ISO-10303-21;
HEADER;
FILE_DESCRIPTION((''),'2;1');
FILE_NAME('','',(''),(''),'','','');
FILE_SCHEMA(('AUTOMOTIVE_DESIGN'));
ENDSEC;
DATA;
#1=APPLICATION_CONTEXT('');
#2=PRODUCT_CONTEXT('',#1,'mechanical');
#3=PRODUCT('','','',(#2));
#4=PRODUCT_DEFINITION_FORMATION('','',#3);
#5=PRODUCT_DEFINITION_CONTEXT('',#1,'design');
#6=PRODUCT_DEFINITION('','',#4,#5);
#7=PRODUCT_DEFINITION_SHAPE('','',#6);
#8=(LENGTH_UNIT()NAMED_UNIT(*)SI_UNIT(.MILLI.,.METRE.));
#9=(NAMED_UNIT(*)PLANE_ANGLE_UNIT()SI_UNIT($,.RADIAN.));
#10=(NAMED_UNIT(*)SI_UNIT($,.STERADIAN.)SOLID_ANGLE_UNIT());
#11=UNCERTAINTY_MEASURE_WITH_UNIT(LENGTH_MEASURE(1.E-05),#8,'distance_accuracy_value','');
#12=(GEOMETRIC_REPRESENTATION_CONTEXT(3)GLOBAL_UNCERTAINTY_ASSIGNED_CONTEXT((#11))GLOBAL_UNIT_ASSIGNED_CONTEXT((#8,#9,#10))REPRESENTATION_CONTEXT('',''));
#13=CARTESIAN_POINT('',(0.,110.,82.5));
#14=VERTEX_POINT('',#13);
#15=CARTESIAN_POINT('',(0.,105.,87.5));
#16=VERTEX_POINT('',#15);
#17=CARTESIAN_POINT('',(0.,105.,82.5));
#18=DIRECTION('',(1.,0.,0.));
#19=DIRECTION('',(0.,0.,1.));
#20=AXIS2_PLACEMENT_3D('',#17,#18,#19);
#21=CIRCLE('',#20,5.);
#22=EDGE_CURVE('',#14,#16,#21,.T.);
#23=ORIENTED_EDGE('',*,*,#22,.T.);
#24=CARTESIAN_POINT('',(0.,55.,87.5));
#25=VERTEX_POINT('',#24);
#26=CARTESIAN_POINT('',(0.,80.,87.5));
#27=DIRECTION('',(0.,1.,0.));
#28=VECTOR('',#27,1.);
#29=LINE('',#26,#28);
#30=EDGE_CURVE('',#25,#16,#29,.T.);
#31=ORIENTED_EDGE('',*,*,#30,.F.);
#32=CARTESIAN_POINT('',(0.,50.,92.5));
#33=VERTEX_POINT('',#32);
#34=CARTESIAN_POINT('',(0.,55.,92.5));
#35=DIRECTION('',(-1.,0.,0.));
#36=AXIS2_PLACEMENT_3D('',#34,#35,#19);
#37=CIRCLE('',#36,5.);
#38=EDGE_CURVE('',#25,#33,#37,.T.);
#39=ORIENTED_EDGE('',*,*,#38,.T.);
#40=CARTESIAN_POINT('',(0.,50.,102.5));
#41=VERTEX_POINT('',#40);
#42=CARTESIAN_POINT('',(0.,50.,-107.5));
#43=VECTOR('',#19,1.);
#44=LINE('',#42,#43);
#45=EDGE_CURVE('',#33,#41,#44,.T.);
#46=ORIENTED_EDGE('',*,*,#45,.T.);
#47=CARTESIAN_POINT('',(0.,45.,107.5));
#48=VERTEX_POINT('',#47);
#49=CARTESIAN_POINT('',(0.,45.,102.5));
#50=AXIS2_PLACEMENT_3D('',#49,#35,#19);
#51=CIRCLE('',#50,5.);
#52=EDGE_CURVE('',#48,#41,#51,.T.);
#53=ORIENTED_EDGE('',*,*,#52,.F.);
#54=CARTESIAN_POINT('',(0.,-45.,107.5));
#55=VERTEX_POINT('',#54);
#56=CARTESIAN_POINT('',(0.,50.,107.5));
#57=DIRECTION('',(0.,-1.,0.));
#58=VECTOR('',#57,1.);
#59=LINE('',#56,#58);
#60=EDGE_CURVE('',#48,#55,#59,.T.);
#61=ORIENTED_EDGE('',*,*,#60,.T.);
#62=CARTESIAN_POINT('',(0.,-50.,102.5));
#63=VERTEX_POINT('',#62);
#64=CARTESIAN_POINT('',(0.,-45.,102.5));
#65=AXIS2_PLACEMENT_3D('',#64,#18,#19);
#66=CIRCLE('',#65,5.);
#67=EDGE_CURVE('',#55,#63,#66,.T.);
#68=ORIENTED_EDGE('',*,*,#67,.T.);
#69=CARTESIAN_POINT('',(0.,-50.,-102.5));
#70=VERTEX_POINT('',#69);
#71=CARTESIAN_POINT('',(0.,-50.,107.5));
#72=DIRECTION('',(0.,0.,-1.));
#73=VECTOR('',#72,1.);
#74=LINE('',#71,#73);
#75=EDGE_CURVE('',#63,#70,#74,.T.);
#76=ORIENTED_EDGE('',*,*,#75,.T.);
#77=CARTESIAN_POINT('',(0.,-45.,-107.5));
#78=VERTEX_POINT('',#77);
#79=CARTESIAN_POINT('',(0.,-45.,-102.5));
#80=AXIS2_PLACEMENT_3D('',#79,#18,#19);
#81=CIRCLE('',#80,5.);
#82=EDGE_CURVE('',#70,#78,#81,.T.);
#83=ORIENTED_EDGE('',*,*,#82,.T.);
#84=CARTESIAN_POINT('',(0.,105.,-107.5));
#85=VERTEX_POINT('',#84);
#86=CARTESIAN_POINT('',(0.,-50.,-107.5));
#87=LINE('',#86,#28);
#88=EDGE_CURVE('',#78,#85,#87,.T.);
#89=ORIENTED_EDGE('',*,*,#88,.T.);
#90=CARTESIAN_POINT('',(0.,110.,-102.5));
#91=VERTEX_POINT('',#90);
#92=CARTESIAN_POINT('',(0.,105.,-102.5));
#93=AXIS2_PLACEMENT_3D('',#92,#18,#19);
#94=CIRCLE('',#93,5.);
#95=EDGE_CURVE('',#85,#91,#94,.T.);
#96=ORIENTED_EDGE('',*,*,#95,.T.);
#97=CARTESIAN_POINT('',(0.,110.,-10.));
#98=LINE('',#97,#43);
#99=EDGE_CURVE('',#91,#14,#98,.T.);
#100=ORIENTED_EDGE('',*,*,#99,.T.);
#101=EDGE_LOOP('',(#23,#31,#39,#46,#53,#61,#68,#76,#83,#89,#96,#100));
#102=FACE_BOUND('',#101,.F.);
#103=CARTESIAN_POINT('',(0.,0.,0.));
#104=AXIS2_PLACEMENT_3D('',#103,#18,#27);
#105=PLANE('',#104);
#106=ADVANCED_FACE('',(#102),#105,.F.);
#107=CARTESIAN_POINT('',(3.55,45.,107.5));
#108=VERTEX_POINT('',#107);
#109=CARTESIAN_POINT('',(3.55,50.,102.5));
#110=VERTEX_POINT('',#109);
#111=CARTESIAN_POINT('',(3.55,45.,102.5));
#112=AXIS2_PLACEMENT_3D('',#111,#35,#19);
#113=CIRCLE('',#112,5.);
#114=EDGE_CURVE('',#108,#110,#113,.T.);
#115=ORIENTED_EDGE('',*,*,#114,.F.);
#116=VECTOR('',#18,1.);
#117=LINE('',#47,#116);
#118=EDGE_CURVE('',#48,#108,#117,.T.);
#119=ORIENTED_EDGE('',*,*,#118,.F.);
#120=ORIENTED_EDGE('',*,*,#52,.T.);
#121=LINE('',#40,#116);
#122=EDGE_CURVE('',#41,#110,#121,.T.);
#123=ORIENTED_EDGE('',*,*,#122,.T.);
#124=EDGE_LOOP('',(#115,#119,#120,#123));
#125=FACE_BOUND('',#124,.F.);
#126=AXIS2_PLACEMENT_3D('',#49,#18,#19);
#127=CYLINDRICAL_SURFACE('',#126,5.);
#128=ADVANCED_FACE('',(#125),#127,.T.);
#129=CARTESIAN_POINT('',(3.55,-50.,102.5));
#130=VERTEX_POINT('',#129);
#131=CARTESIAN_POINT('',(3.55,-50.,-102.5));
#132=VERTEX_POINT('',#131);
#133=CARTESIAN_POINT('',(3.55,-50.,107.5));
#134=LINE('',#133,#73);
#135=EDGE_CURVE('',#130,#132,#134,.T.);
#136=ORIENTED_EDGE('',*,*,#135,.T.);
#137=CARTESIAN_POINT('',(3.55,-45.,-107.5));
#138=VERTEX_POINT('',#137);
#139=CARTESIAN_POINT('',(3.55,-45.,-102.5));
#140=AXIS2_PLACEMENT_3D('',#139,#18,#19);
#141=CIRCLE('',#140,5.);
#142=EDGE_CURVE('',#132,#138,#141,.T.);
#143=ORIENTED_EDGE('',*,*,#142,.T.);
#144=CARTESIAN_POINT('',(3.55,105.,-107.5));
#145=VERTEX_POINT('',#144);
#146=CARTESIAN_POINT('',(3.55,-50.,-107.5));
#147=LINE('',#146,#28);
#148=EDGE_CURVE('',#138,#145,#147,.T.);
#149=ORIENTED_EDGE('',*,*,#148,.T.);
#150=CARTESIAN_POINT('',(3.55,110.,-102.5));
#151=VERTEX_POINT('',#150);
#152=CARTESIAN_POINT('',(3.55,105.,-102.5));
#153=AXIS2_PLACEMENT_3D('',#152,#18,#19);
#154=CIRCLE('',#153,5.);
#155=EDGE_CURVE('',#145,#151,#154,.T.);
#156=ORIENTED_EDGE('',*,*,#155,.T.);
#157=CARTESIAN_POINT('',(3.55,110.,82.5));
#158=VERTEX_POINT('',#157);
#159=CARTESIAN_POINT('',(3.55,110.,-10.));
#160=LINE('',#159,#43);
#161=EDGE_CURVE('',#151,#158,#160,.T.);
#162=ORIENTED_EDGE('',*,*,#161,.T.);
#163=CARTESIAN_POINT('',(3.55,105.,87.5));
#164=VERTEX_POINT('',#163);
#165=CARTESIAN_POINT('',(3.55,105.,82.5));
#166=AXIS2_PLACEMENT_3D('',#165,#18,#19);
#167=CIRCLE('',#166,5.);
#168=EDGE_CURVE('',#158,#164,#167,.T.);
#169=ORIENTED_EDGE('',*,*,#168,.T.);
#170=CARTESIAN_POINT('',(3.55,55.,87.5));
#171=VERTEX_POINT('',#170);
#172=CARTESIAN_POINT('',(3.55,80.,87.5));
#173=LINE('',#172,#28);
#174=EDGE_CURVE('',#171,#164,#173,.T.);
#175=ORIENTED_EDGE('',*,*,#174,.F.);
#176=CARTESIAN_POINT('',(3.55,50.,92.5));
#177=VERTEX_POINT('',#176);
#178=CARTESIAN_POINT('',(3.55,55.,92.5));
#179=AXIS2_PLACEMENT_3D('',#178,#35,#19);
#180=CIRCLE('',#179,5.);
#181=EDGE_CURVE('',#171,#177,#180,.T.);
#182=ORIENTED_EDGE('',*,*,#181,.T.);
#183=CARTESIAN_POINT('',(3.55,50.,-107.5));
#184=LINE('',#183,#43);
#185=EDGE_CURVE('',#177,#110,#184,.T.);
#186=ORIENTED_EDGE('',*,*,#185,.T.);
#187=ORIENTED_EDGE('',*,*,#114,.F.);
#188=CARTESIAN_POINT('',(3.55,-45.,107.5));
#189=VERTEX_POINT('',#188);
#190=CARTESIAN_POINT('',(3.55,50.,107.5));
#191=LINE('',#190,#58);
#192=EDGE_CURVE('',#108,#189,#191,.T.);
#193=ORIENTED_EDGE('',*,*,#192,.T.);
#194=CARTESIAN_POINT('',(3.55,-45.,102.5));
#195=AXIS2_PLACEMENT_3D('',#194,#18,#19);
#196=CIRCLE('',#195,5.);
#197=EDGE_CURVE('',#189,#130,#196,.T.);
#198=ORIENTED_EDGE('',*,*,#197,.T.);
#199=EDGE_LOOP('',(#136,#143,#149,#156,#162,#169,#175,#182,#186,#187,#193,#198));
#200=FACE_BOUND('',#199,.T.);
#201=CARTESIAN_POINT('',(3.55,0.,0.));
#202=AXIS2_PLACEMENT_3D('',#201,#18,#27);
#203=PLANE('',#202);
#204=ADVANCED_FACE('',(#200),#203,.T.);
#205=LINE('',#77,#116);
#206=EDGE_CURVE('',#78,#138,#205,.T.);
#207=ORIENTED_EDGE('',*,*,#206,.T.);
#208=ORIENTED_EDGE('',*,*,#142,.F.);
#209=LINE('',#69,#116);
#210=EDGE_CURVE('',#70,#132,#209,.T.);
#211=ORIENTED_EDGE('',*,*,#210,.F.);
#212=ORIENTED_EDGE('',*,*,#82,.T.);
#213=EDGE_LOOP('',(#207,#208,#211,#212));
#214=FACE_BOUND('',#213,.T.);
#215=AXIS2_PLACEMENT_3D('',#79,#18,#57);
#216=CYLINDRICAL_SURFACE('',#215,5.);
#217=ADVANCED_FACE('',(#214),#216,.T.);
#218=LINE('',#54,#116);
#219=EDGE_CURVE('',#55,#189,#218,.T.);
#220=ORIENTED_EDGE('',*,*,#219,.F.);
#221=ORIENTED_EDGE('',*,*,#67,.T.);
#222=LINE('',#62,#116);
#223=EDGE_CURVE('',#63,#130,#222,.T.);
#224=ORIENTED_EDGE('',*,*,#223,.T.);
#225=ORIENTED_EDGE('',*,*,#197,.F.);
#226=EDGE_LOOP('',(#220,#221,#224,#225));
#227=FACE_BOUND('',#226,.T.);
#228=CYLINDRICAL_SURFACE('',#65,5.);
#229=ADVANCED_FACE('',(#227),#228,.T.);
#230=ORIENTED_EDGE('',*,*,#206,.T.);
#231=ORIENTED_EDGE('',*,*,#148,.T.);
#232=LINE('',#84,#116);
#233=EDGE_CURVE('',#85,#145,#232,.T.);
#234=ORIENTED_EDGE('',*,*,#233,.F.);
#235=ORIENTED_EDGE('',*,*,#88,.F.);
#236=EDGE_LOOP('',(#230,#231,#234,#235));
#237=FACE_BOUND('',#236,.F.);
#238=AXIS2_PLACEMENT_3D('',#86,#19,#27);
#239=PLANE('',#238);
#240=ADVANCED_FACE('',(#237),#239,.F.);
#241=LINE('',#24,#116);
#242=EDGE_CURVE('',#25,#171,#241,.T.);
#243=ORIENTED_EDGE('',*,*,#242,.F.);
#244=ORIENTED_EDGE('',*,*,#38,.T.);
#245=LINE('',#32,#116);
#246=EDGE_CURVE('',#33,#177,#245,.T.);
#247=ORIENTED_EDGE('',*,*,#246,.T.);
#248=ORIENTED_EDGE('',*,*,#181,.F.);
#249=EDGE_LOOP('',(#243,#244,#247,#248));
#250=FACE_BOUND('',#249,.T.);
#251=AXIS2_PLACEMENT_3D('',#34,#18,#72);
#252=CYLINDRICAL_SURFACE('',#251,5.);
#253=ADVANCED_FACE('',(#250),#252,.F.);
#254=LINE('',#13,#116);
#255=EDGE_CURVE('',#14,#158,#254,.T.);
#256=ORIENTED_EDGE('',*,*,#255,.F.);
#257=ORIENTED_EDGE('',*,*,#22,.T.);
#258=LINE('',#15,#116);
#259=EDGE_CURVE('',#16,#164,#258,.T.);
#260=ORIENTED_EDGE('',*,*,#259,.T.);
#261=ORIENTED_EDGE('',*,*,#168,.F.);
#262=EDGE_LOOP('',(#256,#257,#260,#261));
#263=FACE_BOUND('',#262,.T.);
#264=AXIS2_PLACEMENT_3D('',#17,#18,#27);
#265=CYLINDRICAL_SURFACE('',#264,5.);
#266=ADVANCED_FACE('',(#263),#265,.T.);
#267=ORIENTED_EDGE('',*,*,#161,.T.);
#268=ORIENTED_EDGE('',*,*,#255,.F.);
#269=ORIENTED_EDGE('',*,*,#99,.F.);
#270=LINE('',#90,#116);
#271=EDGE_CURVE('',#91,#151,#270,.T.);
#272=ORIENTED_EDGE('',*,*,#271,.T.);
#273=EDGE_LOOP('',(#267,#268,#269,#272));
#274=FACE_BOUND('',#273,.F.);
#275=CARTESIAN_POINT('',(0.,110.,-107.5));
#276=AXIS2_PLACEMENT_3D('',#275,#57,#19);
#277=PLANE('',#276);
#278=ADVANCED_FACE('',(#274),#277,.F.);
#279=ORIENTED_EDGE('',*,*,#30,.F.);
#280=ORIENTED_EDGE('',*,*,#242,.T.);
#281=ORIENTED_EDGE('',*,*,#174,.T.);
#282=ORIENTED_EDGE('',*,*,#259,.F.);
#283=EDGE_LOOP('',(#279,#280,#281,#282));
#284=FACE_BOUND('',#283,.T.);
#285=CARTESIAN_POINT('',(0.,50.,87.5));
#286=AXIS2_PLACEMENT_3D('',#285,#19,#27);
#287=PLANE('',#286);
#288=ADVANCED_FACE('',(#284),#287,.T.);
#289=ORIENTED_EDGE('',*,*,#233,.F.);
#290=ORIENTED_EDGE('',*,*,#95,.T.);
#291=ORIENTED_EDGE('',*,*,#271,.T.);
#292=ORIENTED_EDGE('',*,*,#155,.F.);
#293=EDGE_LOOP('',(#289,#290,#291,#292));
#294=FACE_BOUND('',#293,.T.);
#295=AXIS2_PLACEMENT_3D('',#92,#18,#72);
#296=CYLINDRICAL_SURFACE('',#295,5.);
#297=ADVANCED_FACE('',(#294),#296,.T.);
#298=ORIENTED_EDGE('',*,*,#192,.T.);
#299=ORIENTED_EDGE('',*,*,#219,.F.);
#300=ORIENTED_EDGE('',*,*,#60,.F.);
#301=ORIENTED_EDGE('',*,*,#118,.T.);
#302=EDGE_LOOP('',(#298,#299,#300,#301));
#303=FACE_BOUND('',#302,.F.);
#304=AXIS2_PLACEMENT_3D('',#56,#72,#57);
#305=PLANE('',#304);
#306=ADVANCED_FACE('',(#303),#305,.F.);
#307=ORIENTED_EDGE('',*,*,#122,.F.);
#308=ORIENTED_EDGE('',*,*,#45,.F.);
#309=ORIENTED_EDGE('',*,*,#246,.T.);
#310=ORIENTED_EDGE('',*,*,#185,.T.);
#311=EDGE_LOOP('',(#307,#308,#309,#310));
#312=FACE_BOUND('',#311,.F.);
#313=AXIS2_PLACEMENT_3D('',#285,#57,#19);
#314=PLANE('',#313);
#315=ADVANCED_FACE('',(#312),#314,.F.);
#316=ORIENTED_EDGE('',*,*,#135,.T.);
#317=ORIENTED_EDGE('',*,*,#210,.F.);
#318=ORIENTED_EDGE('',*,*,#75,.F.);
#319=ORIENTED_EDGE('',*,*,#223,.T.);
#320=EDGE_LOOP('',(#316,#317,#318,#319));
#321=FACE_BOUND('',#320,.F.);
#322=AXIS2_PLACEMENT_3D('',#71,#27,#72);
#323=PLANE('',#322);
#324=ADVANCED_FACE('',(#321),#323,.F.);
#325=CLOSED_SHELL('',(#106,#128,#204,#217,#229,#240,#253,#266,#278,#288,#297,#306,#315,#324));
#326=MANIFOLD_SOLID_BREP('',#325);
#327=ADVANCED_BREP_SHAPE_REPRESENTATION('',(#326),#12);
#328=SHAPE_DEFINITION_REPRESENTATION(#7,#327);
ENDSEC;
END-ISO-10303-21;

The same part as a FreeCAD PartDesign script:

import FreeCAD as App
import Part
import Sketcher
Q = App.Units.Quantity


def edges_at(feature, points):
    """Names of the edges that pass closest to the given points."""
    edges = feature.Shape.Edges
    near = lambda p: min(range(len(edges)), key=lambda i: edges[i].distToShape(Part.Vertex(*p))[0])
    return sorted({f"Edge{near(p) + 1}" for p in points})


def add_polygon(sketch, points):
    """Adds a closed chain of lines whose ends are joined by coincident constraints."""
    first, n = sketch.GeometryCount, len(points)
    for a, b in zip(points, points[1:] + points[:1]):
        sketch.addGeometry(Part.LineSegment(App.Vector(*a, 0), App.Vector(*b, 0)), False)
    for i in range(n):
        sketch.addConstraint(Sketcher.Constraint("Coincident", first + i, 2, first + (i + 1) % n, 1))

doc = App.newDocument("Part")
body = doc.addObject("PartDesign::Body", "Body")

# Sketch on YZ plane
sketch1 = body.newObject("Sketcher::SketchObject", "Sketch")
sketch1.AttachmentSupport = (doc.getObject("YZ_Plane"), [""])
sketch1.MapMode = "FlatFace"
add_polygon(sketch1, [(50, 107.5), (-50, 107.5), (-50, -107.5), (110, -107.5), (110, 87.5), (50, 87.5)])  # lines 0-5
sketch1.addConstraint([
    Sketcher.Constraint("Horizontal", 0),
    Sketcher.Constraint("Vertical", 1),
    Sketcher.Constraint("Horizontal", 2),
    Sketcher.Constraint("Vertical", 3),
    Sketcher.Constraint("Horizontal", 4),
    Sketcher.Constraint("Vertical", 5),
    Sketcher.Constraint("Symmetric", 1, 2, 5, 2, -1, 1),
    Sketcher.Constraint("DistanceX", 0, 2, 0, 1, Q("100 mm")),
    Sketcher.Constraint("DistanceX", 2, 1, 2, 2, Q("160 mm")),
    Sketcher.Constraint("DistanceY", 1, 2, 1, 1, Q("215 mm")),
    Sketcher.Constraint("DistanceY", 3, 1, 3, 2, Q("195 mm")),
])
pad1 = body.newObject("PartDesign::Pad", "Pad")
pad1.Profile = sketch1
pad1.Length = 3.55
doc.recompute()

fillet = body.newObject("PartDesign::Fillet", "Fillet")
fillet.Base = (pad1, edges_at(pad1, [
    (1.775, 50, 87.5),
    (1.775, 50, 107.5),
    (1.775, 110, 87.5),
    (1.775, -50, 107.5),
    (1.775, 110, -107.5),
    (1.775, -50, -107.5),
]))
fillet.Radius = 5

doc.recompute()
